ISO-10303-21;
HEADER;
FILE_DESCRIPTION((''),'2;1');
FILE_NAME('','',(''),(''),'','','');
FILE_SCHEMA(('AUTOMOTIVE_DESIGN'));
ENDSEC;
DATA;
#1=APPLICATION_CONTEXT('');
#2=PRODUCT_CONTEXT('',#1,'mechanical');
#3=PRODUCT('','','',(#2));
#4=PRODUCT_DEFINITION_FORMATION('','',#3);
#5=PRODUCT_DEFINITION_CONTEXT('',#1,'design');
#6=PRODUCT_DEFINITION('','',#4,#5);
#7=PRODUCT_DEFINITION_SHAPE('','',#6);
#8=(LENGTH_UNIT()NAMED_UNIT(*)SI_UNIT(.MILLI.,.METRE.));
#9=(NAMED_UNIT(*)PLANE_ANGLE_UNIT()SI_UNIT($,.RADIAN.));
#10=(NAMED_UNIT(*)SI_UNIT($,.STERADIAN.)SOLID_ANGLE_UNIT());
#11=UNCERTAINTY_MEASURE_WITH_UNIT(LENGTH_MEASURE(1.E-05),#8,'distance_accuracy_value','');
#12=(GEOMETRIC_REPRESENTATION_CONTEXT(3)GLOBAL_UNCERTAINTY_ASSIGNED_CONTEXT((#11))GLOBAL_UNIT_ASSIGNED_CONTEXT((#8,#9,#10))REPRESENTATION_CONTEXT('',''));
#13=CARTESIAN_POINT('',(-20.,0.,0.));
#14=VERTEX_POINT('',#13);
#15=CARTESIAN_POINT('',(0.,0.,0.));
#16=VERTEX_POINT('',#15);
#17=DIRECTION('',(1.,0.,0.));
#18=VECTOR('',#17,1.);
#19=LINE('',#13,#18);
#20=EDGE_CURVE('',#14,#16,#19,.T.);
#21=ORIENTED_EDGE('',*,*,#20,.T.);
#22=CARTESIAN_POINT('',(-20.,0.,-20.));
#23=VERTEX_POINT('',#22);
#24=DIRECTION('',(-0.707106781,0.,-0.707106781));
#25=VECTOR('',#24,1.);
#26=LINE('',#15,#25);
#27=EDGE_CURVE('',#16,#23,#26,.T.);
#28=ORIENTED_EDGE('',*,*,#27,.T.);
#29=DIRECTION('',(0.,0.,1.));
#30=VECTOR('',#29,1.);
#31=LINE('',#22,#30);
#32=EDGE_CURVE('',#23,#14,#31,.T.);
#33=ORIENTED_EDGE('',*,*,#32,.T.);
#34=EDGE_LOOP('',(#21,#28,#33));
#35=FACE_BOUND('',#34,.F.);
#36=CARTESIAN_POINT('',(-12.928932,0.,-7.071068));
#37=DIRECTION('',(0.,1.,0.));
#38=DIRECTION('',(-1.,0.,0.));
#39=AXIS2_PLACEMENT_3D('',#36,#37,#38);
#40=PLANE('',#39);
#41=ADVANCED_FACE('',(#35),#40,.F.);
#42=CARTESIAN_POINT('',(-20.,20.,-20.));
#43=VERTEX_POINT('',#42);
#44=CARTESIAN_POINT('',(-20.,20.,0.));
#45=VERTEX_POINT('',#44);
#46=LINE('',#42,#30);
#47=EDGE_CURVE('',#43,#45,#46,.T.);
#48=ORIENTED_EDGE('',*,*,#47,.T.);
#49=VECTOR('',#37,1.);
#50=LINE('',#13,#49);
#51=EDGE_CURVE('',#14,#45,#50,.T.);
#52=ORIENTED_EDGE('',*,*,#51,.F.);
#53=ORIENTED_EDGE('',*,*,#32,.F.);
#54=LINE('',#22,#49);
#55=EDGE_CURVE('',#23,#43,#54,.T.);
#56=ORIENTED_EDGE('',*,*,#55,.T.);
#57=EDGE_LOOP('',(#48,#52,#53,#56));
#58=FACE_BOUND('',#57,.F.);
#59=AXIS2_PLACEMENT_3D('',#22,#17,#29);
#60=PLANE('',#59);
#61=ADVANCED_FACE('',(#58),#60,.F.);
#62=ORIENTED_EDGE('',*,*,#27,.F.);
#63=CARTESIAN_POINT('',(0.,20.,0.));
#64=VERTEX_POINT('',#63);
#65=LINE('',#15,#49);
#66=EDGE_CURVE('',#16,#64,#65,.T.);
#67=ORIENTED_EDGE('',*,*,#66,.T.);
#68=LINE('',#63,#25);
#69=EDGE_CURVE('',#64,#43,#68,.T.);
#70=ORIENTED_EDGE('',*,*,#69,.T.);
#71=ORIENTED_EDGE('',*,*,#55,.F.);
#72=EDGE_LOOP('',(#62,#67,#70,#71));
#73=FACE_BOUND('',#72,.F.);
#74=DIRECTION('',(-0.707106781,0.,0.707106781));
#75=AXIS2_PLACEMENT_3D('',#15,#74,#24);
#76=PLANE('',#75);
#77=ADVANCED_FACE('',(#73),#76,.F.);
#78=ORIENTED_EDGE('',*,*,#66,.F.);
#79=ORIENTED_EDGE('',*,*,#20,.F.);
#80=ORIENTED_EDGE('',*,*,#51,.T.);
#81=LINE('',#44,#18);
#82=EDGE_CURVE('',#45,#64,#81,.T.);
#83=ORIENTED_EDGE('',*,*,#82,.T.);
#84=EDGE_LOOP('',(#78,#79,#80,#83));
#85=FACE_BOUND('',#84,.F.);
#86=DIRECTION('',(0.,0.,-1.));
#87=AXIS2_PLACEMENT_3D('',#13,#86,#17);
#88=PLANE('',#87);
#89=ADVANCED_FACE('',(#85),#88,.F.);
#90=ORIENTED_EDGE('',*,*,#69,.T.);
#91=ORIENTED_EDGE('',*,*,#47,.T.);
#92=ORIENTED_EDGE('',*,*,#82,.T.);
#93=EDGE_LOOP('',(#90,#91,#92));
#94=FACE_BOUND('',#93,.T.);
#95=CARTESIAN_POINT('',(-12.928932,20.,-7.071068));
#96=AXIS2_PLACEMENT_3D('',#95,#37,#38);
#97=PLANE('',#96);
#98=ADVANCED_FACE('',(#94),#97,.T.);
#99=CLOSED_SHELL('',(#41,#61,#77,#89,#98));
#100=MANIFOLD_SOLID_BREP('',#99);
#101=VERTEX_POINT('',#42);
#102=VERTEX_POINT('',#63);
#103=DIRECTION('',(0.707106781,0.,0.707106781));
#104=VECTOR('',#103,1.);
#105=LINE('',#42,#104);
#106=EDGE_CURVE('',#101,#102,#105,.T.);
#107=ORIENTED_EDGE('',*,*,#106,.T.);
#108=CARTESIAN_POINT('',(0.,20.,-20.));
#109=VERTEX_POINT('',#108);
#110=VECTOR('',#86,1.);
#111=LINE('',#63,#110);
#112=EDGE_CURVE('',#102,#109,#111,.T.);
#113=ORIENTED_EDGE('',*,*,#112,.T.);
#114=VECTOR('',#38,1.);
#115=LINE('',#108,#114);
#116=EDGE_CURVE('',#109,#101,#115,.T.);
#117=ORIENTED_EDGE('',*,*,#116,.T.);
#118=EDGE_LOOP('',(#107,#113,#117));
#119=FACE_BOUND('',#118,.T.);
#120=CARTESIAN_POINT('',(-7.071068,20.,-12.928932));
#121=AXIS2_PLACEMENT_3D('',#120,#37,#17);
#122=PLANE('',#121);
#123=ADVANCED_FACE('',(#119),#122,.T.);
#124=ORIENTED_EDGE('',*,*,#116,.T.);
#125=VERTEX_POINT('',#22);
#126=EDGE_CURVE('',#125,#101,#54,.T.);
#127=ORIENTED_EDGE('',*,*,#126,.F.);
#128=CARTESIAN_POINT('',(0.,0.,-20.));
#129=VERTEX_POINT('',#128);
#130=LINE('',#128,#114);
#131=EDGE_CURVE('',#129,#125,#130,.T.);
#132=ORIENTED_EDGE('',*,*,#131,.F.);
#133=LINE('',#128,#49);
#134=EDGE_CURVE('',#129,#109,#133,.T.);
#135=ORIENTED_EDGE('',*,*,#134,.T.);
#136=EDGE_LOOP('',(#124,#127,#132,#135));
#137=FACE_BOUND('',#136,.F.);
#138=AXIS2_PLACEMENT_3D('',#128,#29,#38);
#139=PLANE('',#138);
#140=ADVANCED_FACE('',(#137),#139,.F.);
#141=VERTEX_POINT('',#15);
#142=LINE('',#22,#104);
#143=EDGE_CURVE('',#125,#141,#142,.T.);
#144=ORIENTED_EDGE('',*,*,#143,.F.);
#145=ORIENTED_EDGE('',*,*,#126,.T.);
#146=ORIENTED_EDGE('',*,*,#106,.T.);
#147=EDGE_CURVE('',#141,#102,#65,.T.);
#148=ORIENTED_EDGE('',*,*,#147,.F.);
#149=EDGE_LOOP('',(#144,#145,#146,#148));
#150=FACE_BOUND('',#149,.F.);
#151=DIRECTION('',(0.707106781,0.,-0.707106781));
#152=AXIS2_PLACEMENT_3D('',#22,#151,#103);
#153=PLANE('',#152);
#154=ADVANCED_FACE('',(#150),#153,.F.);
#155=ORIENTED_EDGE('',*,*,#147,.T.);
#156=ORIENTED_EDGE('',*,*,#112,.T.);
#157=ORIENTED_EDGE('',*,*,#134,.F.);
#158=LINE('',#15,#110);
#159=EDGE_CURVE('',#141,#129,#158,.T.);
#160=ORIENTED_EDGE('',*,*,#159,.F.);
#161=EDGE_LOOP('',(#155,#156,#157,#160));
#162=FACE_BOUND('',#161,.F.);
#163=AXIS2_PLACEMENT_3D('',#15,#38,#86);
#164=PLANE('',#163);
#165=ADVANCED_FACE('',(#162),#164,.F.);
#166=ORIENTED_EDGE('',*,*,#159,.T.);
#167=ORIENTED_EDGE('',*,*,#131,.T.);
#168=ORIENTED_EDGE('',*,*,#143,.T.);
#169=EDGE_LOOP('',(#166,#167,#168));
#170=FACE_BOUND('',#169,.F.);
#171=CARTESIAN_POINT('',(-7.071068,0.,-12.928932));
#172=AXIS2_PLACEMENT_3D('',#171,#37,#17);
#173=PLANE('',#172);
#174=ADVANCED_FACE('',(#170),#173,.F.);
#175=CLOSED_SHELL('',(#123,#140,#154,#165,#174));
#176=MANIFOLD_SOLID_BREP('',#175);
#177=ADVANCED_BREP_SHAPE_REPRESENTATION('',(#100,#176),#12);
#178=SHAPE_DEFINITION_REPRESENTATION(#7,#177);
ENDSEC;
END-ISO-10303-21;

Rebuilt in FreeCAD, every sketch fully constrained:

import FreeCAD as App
import Part
import Sketcher
Q = App.Units.Quantity


def add_polygon(sketch, points):
    """Adds a closed chain of lines whose ends are joined by coincident constraints."""
    first, n = sketch.GeometryCount, len(points)
    for a, b in zip(points, points[1:] + points[:1]):
        sketch.addGeometry(Part.LineSegment(App.Vector(*a, 0), App.Vector(*b, 0)), False)
    for i in range(n):
        sketch.addConstraint(Sketcher.Constraint("Coincident", first + i, 2, first + (i + 1) % n, 1))

doc = App.newDocument("Part")
body = doc.addObject("PartDesign::Body", "Body")

sketch1 = body.newObject("Sketcher::SketchObject", "Sketch")
sketch1.AttachmentSupport = (doc.getObject("XZ_Plane"), [""])
sketch1.MapMode = "FlatFace"
add_polygon(sketch1, [(0, 0), (0, -20), (-20, -20)])
sketch1.addConstraint(Sketcher.Constraint("Vertical", 0))
sketch1.addConstraint(Sketcher.Constraint("Horizontal", 1))
sketch1.addConstraint(Sketcher.Constraint("Coincident", 2, 2, -1, 1))
sketch1.addConstraint(Sketcher.Constraint("Equal", 1, 0))
sketch1.addConstraint(Sketcher.Constraint("DistanceX", 1, 2, 1, 1, Q("20 mm")))
pad1 = body.newObject("PartDesign::Pad", "Pad")
pad1.Profile = sketch1
pad1.Length = 20
pad1.Reversed = True
body2 = doc.addObject("PartDesign::Body", "Body001")

sketch2 = body2.newObject("Sketcher::SketchObject", "Sketch001")
sketch2.AttachmentSupport = (doc.getObject("XZ_Plane001"), [""])
sketch2.MapMode = "FlatFace"
add_polygon(sketch2, [(-20, 0), (-20, -20), (0, 0)])
sketch2.addConstraint(Sketcher.Constraint("Vertical", 0))
sketch2.addConstraint(Sketcher.Constraint("Horizontal", 2))
sketch2.addConstraint(Sketcher.Constraint("Coincident", 1, 2, -1, 1))
sketch2.addConstraint(Sketcher.Constraint("Equal", 2, 0))
sketch2.addConstraint(Sketcher.Constraint("DistanceX", 2, 2, 2, 1, Q("20 mm")))
pad2 = body2.newObject("PartDesign::Pad", "Pad001")
pad2.Profile = sketch2
pad2.Length = 20
pad2.Reversed = True

doc.recompute()
